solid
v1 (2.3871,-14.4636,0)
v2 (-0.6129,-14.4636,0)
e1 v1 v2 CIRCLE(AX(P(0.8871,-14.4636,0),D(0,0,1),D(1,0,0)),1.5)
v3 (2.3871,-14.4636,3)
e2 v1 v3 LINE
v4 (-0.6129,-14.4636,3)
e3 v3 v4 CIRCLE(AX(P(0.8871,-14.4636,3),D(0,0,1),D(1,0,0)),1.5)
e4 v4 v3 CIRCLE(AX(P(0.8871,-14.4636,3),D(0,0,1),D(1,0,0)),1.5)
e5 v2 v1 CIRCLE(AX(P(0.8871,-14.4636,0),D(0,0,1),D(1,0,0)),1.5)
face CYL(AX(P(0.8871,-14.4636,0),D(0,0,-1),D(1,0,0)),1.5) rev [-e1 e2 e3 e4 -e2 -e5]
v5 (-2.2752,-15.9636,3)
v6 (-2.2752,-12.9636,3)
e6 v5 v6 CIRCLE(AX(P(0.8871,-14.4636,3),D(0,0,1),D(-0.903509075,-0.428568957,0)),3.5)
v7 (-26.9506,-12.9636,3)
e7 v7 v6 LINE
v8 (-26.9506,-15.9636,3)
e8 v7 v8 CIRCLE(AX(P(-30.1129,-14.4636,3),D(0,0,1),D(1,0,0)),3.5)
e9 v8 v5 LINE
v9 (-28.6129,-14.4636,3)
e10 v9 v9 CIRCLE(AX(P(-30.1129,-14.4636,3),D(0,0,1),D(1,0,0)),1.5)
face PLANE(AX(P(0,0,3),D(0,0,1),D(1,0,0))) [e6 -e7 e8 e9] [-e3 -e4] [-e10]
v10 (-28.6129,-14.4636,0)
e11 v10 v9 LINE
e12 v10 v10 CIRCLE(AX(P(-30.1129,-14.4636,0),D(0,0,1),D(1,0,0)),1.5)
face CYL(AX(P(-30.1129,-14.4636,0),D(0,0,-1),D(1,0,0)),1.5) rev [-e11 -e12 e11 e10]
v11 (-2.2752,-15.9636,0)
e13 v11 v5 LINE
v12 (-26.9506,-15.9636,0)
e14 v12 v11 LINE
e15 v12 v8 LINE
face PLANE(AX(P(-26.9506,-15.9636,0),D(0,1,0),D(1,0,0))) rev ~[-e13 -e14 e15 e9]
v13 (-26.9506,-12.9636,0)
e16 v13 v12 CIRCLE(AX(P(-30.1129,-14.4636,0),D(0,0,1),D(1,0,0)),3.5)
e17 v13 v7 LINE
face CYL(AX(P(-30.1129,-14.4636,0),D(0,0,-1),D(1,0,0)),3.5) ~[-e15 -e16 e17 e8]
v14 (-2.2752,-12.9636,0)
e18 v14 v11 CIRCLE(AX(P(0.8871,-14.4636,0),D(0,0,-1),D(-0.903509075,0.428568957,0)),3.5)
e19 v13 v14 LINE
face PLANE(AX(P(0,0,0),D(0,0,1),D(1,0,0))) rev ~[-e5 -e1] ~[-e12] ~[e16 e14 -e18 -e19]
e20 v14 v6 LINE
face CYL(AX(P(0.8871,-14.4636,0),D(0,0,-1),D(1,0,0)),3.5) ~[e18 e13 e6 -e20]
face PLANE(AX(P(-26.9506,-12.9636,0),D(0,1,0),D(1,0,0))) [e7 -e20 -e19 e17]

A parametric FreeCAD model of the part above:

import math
import FreeCAD as App
import Part
import Sketcher

V = App.Vector

doc = App.newDocument("Part")
body = doc.addObject("PartDesign::Body", "Body")

# Sketch on XY plane
sketch1 = doc.addObject("Sketcher::SketchObject", "Sketch")
body.addObject(sketch1)
sketch1.AttachmentSupport = (doc.XY_Plane, [""])
sketch1.MapMode = "FlatFace"
sketch1.addGeometry([
    Part.ArcOfCircle(Part.Circle(V(-30.1, -14.5, 0), V(0, 0, 1), 3.5), math.radians(25), math.radians(335)),  # 0
    Part.LineSegment(V(-27, -16, 0), V(-2.3, -16, 0)),  # 1
    Part.ArcOfCircle(Part.Circle(V(0.9, -14.5, 0), V(0, 0, 1), 3.5), math.radians(-155), math.radians(155)),  # 2
    Part.LineSegment(V(-2.3, -13, 0), V(-27, -13, 0)),  # 3
    Part.Circle(V(-30.1, -14.5, 0), V(0, 0, 1), 1.5),  # 4
    Part.Circle(V(0.9, -14.5, 0), V(0, 0, 1), 1.5),  # 5
], False)
sketch1.addConstraint([
    Sketcher.Constraint("Coincident", 0, 2, 1, 1),
    Sketcher.Constraint("Coincident", 1, 2, 2, 1),
    Sketcher.Constraint("Coincident", 2, 2, 3, 1),
    Sketcher.Constraint("Coincident", 3, 2, 0, 1),
    Sketcher.Constraint("Horizontal", 1),
    Sketcher.Constraint("Horizontal", 3),
    Sketcher.Constraint("Coincident", 4, 3, 0, 3),
    Sketcher.Constraint("Coincident", 5, 3, 2, 3),
    Sketcher.Constraint("Equal", 0, 2),
    Sketcher.Constraint("Equal", 4, 5),
    Sketcher.Constraint("Horizontal", 0, 3, 2, 3),
    Sketcher.Constraint("Vertical", 1, 2, 2, 2),
    Sketcher.Constraint("Diameter", 4, 3.0),
    Sketcher.Constraint("Radius", 0, 3.5),
    Sketcher.Constraint("DistanceX", 0, 3, 2, 3, 31.0),
    Sketcher.Constraint("DistanceY", 1, 2, 2, 2, 3.0),
    Sketcher.Constraint("DistanceX", 0, 3, -1, 1, 30.113),
    Sketcher.Constraint("DistanceY", 0, 3, -1, 1, 14.4636),
])
pad1 = doc.addObject("PartDesign::Pad", "Pad")
body.addObject(pad1)
pad1.Profile = sketch1
pad1.Length = 3

doc.recompute()
